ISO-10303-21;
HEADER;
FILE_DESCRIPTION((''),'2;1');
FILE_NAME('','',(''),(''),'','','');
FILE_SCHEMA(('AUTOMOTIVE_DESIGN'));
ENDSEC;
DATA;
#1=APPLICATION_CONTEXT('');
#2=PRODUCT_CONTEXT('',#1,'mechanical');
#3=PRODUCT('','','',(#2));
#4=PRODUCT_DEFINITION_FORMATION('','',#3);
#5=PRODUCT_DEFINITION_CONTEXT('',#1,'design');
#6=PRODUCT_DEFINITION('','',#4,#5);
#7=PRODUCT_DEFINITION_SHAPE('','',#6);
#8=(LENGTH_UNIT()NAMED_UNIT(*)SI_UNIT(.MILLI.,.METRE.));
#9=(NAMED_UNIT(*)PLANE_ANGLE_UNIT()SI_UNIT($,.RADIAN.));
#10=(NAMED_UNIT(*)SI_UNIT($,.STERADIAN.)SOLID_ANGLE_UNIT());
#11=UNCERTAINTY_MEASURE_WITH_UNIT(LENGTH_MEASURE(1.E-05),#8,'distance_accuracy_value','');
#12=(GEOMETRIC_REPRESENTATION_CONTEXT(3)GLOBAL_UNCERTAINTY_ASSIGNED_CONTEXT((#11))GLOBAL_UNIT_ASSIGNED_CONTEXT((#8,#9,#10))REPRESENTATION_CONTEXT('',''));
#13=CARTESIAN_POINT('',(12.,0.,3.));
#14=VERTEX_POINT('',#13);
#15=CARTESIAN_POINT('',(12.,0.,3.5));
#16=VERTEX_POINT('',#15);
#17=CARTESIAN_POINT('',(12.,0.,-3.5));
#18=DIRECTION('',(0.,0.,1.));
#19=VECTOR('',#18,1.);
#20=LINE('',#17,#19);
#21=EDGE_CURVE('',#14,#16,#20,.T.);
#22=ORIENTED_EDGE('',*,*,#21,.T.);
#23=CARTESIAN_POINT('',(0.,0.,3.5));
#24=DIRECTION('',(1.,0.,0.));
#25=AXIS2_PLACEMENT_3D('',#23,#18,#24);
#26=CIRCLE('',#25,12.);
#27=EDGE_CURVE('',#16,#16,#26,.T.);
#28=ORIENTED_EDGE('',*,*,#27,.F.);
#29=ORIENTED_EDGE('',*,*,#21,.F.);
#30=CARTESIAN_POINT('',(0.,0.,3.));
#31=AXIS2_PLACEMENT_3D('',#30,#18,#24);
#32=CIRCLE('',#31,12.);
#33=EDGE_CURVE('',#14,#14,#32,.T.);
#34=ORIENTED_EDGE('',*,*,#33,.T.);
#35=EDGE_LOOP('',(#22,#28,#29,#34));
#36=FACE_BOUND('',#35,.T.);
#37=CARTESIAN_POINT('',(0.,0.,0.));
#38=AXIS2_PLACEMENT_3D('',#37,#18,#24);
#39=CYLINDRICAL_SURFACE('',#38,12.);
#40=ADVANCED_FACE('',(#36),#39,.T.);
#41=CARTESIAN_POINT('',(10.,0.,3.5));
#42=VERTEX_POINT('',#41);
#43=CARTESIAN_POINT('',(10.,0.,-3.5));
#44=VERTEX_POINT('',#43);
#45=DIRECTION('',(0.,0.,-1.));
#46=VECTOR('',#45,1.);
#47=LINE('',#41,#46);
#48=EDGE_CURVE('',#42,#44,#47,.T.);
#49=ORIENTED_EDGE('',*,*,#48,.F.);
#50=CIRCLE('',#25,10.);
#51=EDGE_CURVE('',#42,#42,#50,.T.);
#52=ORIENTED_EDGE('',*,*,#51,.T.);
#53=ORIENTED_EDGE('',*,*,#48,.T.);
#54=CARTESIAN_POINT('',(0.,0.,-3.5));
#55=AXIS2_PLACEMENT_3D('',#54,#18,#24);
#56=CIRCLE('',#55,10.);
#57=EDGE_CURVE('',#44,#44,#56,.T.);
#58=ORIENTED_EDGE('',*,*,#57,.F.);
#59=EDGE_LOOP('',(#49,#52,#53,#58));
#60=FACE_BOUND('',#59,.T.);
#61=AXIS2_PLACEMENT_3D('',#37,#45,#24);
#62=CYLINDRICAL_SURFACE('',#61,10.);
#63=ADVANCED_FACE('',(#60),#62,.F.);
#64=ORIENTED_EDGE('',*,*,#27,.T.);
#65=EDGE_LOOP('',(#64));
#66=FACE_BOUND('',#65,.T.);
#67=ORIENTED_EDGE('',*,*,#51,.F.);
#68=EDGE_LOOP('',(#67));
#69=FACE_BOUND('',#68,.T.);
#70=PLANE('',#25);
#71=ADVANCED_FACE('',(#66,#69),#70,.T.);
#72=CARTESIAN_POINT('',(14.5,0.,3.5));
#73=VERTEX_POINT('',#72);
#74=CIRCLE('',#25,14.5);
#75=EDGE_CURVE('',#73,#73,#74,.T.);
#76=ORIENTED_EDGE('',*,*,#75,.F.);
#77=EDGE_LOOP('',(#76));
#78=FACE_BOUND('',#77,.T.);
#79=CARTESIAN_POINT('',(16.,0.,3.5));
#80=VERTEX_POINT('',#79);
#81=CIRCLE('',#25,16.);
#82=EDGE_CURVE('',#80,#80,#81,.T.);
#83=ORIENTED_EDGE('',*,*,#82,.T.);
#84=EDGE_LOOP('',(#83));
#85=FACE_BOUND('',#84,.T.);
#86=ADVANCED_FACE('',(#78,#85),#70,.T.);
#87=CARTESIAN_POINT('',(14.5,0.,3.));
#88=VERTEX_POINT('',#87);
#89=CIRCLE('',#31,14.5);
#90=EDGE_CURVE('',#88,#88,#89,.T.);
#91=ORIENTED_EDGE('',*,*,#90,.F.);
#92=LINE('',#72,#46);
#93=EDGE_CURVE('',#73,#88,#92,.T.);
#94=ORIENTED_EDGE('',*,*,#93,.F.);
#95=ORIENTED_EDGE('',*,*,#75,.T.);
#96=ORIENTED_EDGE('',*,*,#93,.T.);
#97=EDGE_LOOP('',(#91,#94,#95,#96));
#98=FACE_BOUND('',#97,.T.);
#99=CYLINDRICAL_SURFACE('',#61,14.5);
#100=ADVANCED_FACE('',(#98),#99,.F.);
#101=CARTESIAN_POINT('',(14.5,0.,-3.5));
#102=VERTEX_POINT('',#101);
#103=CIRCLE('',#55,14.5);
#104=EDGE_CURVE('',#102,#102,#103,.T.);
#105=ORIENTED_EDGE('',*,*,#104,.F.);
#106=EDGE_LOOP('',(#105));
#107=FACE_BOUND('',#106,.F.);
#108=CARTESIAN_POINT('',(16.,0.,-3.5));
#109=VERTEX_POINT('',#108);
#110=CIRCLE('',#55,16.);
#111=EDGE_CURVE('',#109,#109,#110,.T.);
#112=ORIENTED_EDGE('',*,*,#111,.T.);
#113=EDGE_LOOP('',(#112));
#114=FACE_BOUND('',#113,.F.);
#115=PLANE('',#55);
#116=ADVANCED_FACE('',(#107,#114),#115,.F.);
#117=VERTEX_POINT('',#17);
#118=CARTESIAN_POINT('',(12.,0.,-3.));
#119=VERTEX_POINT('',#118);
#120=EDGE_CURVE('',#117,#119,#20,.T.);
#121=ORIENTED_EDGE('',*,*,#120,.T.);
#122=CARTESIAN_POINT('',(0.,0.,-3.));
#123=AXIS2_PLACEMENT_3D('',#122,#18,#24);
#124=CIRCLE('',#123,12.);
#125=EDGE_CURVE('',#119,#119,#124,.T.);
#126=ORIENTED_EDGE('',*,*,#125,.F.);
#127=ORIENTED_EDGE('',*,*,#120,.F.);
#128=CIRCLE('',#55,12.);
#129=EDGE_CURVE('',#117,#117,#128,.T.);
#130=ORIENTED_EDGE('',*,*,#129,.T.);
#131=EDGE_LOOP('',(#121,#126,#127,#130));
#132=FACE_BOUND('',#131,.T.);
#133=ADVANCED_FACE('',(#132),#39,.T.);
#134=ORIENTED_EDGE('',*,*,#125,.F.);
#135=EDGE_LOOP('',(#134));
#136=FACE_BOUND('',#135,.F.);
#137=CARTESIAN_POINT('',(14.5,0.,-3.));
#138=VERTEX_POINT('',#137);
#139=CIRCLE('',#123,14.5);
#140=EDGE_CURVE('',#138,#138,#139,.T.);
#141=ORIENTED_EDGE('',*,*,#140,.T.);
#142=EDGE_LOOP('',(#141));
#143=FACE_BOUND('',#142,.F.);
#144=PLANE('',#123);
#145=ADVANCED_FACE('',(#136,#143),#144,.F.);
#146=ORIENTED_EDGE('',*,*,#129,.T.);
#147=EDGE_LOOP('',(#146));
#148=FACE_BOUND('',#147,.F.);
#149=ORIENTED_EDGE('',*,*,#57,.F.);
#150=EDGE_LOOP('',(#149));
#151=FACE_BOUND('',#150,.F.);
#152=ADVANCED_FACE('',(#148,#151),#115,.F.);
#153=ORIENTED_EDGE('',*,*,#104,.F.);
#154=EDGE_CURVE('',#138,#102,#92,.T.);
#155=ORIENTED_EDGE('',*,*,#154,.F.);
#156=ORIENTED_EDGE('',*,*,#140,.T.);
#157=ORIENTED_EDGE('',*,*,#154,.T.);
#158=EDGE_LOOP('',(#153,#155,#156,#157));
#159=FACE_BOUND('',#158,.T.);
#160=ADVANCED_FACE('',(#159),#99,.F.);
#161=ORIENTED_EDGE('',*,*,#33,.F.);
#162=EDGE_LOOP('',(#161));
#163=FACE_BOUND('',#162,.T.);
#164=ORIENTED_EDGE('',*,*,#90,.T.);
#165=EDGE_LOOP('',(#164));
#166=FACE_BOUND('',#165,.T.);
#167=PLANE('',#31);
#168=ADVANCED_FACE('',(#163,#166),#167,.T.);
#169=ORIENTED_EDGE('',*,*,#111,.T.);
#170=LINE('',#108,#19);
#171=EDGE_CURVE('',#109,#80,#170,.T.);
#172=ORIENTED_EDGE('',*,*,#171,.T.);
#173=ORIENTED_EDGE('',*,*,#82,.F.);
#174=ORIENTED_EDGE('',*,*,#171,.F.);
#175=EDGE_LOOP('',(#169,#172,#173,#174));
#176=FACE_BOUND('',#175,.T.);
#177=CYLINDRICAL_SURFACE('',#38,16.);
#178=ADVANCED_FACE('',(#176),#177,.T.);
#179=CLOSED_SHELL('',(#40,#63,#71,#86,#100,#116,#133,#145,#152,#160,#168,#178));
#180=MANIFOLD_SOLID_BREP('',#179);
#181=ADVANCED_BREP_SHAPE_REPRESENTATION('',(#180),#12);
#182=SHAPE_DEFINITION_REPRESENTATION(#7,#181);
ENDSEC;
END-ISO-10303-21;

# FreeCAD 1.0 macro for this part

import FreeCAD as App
import Part
import Sketcher

V = App.Vector

doc = App.newDocument("Part")
params = doc.addObject("Spreadsheet::Sheet", "Params")
for row, (alias, value) in enumerate([
    ("sketch1_diameter", "32 mm"),
    ("sketch1_diameter2", "29 mm"),
    ("pad1_length", "7 mm"),
    ("sketch2_diameter", "29 mm"),
    ("sketch2_diameter2", "24 mm"),
    ("pad2_length", "6 mm"),
    ("sketch3_diameter", "24 mm"),
    ("sketch3_diameter2", "20 mm"),
    ("pad3_length", "7 mm"),
], start=1):
    params.set(f"A{row}", alias)
    params.set(f"B{row}", "=" + value)
    params.setAlias(f"B{row}", alias)

body = doc.addObject("PartDesign::Body", "Body")

# Sketch on XY plane
sketch1 = body.newObject("Sketcher::SketchObject", "Sketch")
sketch1.AttachmentSupport = (doc.getObject("XY_Plane"), [""])
sketch1.MapMode = "FlatFace"
sketch1.addGeometry(Part.Circle(V(0, 0, 0), V(0, 0, 1), 16), False)
sketch1.addGeometry(Part.Circle(V(0, 0, 0), V(0, 0, 1), 14), False)
sketch1.addConstraint(Sketcher.Constraint("Coincident", 0, 3, -1, 1))
sketch1.addConstraint(Sketcher.Constraint("Coincident", 1, 3, -1, 1))
sketch1.addConstraint(Sketcher.Constraint("Diameter", 0, 32.0))
sketch1.addConstraint(Sketcher.Constraint("Diameter", 1, 29.0))
sketch1.setExpression("Constraints[2]", "Params.sketch1_diameter")
sketch1.setExpression("Constraints[3]", "Params.sketch1_diameter2")
pad1 = body.newObject("PartDesign::Pad", "Pad")
pad1.Profile = sketch1
pad1.setExpression("Length", "Params.pad1_length")
pad1.Midplane = True

# Sketch on XY plane
sketch2 = body.newObject("Sketcher::SketchObject", "Sketch001")
sketch2.AttachmentSupport = (doc.getObject("XY_Plane"), [""])
sketch2.MapMode = "FlatFace"
sketch2.addGeometry(Part.Circle(V(0, 0, 0), V(0, 0, 1), 14), False)
sketch2.addGeometry(Part.Circle(V(0, 0, 0), V(0, 0, 1), 12), False)
sketch2.addConstraint(Sketcher.Constraint("Coincident", 0, 3, -1, 1))
sketch2.addConstraint(Sketcher.Constraint("Coincident", 1, 3, -1, 1))
sketch2.addConstraint(Sketcher.Constraint("Diameter", 0, 29.0))
sketch2.addConstraint(Sketcher.Constraint("Diameter", 1, 24.0))
sketch2.setExpression("Constraints[2]", "Params.sketch2_diameter")
sketch2.setExpression("Constraints[3]", "Params.sketch2_diameter2")
pad2 = body.newObject("PartDesign::Pad", "Pad001")
pad2.Profile = sketch2
pad2.setExpression("Length", "Params.pad2_length")
pad2.Midplane = True

# Sketch on XY plane
sketch3 = body.newObject("Sketcher::SketchObject", "Sketch002")
sketch3.AttachmentSupport = (doc.getObject("XY_Plane"), [""])
sketch3.MapMode = "FlatFace"
sketch3.addGeometry(Part.Circle(V(0, 0, 0), V(0, 0, 1), 12), False)
sketch3.addGeometry(Part.Circle(V(0, 0, 0), V(0, 0, 1), 10), False)
sketch3.addConstraint(Sketcher.Constraint("Coincident", 0, 3, -1, 1))
sketch3.addConstraint(Sketcher.Constraint("Coincident", 1, 3, -1, 1))
sketch3.addConstraint(Sketcher.Constraint("Diameter", 0, 24.0))
sketch3.addConstraint(Sketcher.Constraint("Diameter", 1, 20.0))
sketch3.setExpression("Constraints[2]", "Params.sketch3_diameter")
sketch3.setExpression("Constraints[3]", "Params.sketch3_diameter2")
pad3 = body.newObject("PartDesign::Pad", "Pad002")
pad3.Profile = sketch3
pad3.setExpression("Length", "Params.pad3_length")
pad3.Midplane = True

doc.recompute()
